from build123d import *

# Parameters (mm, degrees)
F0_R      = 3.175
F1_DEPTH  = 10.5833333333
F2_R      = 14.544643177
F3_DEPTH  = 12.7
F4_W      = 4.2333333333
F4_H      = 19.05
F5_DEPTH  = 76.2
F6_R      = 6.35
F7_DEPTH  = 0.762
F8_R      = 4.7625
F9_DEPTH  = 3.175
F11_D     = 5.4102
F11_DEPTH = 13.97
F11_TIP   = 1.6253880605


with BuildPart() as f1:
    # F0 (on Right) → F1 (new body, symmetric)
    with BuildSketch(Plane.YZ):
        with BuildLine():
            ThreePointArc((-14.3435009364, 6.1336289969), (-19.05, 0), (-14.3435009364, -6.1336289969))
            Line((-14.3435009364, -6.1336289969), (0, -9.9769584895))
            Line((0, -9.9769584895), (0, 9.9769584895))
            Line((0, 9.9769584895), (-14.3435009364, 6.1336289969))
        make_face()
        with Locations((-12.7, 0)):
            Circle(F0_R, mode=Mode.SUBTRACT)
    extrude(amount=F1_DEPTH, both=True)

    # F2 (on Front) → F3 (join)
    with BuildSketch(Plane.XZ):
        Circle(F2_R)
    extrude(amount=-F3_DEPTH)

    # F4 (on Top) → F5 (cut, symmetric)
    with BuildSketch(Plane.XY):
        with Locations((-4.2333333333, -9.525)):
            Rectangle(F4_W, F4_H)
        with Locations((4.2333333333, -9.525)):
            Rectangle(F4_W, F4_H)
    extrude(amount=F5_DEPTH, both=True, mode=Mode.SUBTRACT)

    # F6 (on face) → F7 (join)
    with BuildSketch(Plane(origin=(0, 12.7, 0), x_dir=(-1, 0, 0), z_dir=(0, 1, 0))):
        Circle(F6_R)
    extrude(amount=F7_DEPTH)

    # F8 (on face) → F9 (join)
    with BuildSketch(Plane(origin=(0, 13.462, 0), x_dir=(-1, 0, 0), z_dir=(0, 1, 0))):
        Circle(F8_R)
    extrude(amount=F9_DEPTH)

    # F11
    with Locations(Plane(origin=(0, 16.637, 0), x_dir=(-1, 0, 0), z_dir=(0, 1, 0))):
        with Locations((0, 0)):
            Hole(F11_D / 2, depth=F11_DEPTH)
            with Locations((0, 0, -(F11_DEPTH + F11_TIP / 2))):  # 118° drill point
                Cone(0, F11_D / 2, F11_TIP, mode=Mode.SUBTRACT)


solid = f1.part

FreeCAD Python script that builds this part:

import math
import FreeCAD as App
import Part
import Sketcher
Q = App.Units.Quantity

doc = App.newDocument("Part")
body = doc.addObject("PartDesign::Body", "Body")

sketch1 = doc.addObject("Sketcher::SketchObject", "Sketch")
body.addObject(sketch1)
sketch1.AttachmentSupport = (doc.YZ_Plane, [""])
sketch1.MapMode = "FlatFace"
sketch1.addGeometry(Part.ArcOfCircle(Part.Circle(App.Vector(-12.7, 0, 0), App.Vector(0, 0, 1), 6.35), math.radians(105), math.radians(255)), False)
sketch1.addGeometry(Part.LineSegment(App.Vector(-14.343501, -6.133629, 0), App.Vector(0, -9.976958, 0)), False)
sketch1.addGeometry(Part.LineSegment(App.Vector(0, -9.976958, 0), App.Vector(0, 9.976958, 0)), False)
sketch1.addGeometry(Part.LineSegment(App.Vector(0, 9.976958, 0), App.Vector(-14.343501, 6.133629, 0)), False)
sketch1.addGeometry(Part.Circle(App.Vector(-12.7, 0, 0), App.Vector(0, 0, 1), 3.175), False)
sketch1.addConstraint(Sketcher.Constraint("Tangent", 0, 2, 1, 1))
sketch1.addConstraint(Sketcher.Constraint("Coincident", 1, 2, 2, 1))
sketch1.addConstraint(Sketcher.Constraint("Coincident", 2, 2, 3, 1))
sketch1.addConstraint(Sketcher.Constraint("Tangent", 3, 2, 0, 1))
sketch1.addConstraint(Sketcher.Constraint("Vertical", 2))
sketch1.addConstraint(Sketcher.Constraint("Coincident", 4, 3, 0, 3))
sketch1.addConstraint(Sketcher.Constraint("Symmetric", 1, 2, 2, 2, -1, 1))
sketch1.addConstraint(Sketcher.Constraint("PointOnObject", 0, 3, -1))
sketch1.addConstraint(Sketcher.Constraint("Diameter", 4, Q("0.25 in")))
sketch1.addConstraint(Sketcher.Constraint("Radius", 0, Q("0.25 in")))
sketch1.addConstraint(Sketcher.Constraint("Angle", 1, Q("-15 deg")))
sketch1.addConstraint(Sketcher.Constraint("DistanceX", 0, 3, -1, 1, Q("0.5 in")))
pad1 = doc.addObject("PartDesign::Pad", "Pad")
body.addObject(pad1)
pad1.Profile = sketch1
pad1.Length = 21.166667
pad1.Midplane = True

sketch2 = doc.addObject("Sketcher::SketchObject", "Sketch001")
body.addObject(sketch2)
sketch2.AttachmentSupport = (doc.XZ_Plane, [""])
sketch2.MapMode = "FlatFace"
sketch2.addGeometry(Part.Circle(App.Vector(0, 0, 0), App.Vector(0, 0, 1), 14.544643), False)
sketch2.addConstraint(Sketcher.Constraint("Coincident", 0, 3, -1, 1))
sketch2.addConstraint(Sketcher.Constraint("Diameter", 0, 29.089286))
pad2 = doc.addObject("PartDesign::Pad", "Pad001")
body.addObject(pad2)
pad2.Profile = sketch2
pad2.Length = Q("0.5 in")
pad2.Reversed = True

sketch3 = doc.addObject("Sketcher::SketchObject", "Sketch002")
body.addObject(sketch3)
sketch3.AttachmentSupport = (doc.XY_Plane, [""])
sketch3.MapMode = "FlatFace"
sketch3.addGeometry(Part.LineSegment(App.Vector(-6.35, 0, 0), App.Vector(-6.35, -19.05, 0)), False)
sketch3.addGeometry(Part.LineSegment(App.Vector(-6.35, -19.05, 0), App.Vector(-2.116667, -19.05, 0)), False)
sketch3.addGeometry(Part.LineSegment(App.Vector(-2.116667, -19.05, 0), App.Vector(-2.116667, 0, 0)), False)
sketch3.addGeometry(Part.LineSegment(App.Vector(-2.116667, 0, 0), App.Vector(-6.35, 0, 0)), False)
sketch3.addGeometry(Part.LineSegment(App.Vector(2.116667, 0, 0), App.Vector(2.116667, -19.05, 0)), False)
sketch3.addGeometry(Part.LineSegment(App.Vector(2.116667, -19.05, 0), App.Vector(6.35, -19.05, 0)), False)
sketch3.addGeometry(Part.LineSegment(App.Vector(6.35, -19.05, 0), App.Vector(6.35, 0, 0)), False)
sketch3.addGeometry(Part.LineSegment(App.Vector(6.35, 0, 0), App.Vector(2.116667, 0, 0)), False)
sketch3.addConstraint(Sketcher.Constraint("Coincident", 0, 2, 1, 1))
sketch3.addConstraint(Sketcher.Constraint("Coincident", 1, 2, 2, 1))
sketch3.addConstraint(Sketcher.Constraint("Coincident", 2, 2, 3, 1))
sketch3.addConstraint(Sketcher.Constraint("Coincident", 3, 2, 0, 1))
sketch3.addConstraint(Sketcher.Constraint("Coincident", 4, 2, 5, 1))
sketch3.addConstraint(Sketcher.Constraint("Coincident", 5, 2, 6, 1))
sketch3.addConstraint(Sketcher.Constraint("Coincident", 6, 2, 7, 1))
sketch3.addConstraint(Sketcher.Constraint("Coincident", 7, 2, 4, 1))
sketch3.addConstraint(Sketcher.Constraint("Vertical", 0))
sketch3.addConstraint(Sketcher.Constraint("Horizontal", 1))
sketch3.addConstraint(Sketcher.Constraint("Vertical", 2))
sketch3.addConstraint(Sketcher.Constraint("Horizontal", 3))
sketch3.addConstraint(Sketcher.Constraint("Vertical", 4))
sketch3.addConstraint(Sketcher.Constraint("Horizontal", 5))
sketch3.addConstraint(Sketcher.Constraint("Vertical", 6))
sketch3.addConstraint(Sketcher.Constraint("Horizontal", 7))
sketch3.addConstraint(Sketcher.Constraint("Symmetric", 3, 2, 6, 2, -1, 1))
sketch3.addConstraint(Sketcher.Constraint("Symmetric", 1, 2, 4, 2, -2))
sketch3.addConstraint(Sketcher.Constraint("PointOnObject", 2, 2, -1))
sketch3.addConstraint(Sketcher.Constraint("DistanceY", 0, 2, 0, 1, Q("0.75 in")))
sketch3.addConstraint(Sketcher.Constraint("DistanceX", 0, 2, 5, 2, Q("0.5 in")))
sketch3.addConstraint(Sketcher.Constraint("DistanceX", 1, 1, 1, 2, 4.233333))
pocket1 = doc.addObject("PartDesign::Pocket", "Pocket")
body.addObject(pocket1)
pocket1.Profile = sketch3
pocket1.Length = Q("6 in")
pocket1.Midplane = True

sketch4 = doc.addObject("Sketcher::SketchObject", "Sketch003")
body.addObject(sketch4)
sketch4.AttachmentSupport = (doc.XZ_Plane, [""])
sketch4.MapMode = "FlatFace"
sketch4.AttachmentOffset = App.Placement(App.Vector(0, 0, -0.5 * 25.4), App.Rotation())
sketch4.addGeometry(Part.Circle(App.Vector(0, 0, 0), App.Vector(0, 0, 1), 6.35), False)
sketch4.addConstraint(Sketcher.Constraint("Coincident", 0, 3, -1, 1))
sketch4.addConstraint(Sketcher.Constraint("Diameter", 0, Q("0.5 in")))
pad3 = doc.addObject("PartDesign::Pad", "Pad002")
body.addObject(pad3)
pad3.Profile = sketch4
pad3.Length = Q("0.03 in")
pad3.Reversed = True

sketch5 = doc.addObject("Sketcher::SketchObject", "Sketch004")
body.addObject(sketch5)
sketch5.AttachmentSupport = (doc.XZ_Plane, [""])
sketch5.MapMode = "FlatFace"
sketch5.AttachmentOffset = App.Placement(App.Vector(0, 0, -0.53 * 25.4), App.Rotation())
sketch5.addGeometry(Part.Circle(App.Vector(0, 0, 0), App.Vector(0, 0, 1), 4.7625), False)
sketch5.addConstraint(Sketcher.Constraint("Coincident", 0, 3, -1, 1))
sketch5.addConstraint(Sketcher.Constraint("Diameter", 0, Q("0.375 in")))
pad4 = doc.addObject("PartDesign::Pad", "Pad003")
body.addObject(pad4)
pad4.Profile = sketch5
pad4.Length = Q("0.125 in")
pad4.Reversed = True

sketch6 = doc.addObject("Sketcher::SketchObject", "Sketch005")
body.addObject(sketch6)
sketch6.AttachmentSupport = (doc.XZ_Plane, [""])
sketch6.MapMode = "FlatFace"
sketch6.AttachmentOffset = App.Placement(App.Vector(0, 0, -0.655 * 25.4), App.Rotation())
sketch6.addGeometry(Part.Circle(App.Vector(0, 0, 0), App.Vector(0, 0, 1), 2.7051), False)
sketch6.addConstraint(Sketcher.Constraint("Coincident", 0, 3, -1, 1))
sketch6.addConstraint(Sketcher.Constraint("Diameter", 0, Q("0.213 in")))
doc.recompute()
hole = doc.addObject("PartDesign::Hole", "Hole")
body.addObject(hole)
hole.Profile = sketch6
hole.ThreadType = "None"
hole.Diameter = Q("0.213 in")
hole.DepthType = "Dimension"
hole.Depth = Q("0.55 in")
hole.DrillPoint = "Angled"
hole.DrillPointAngle = 118
hole.Reversed = True

doc.recompute()
